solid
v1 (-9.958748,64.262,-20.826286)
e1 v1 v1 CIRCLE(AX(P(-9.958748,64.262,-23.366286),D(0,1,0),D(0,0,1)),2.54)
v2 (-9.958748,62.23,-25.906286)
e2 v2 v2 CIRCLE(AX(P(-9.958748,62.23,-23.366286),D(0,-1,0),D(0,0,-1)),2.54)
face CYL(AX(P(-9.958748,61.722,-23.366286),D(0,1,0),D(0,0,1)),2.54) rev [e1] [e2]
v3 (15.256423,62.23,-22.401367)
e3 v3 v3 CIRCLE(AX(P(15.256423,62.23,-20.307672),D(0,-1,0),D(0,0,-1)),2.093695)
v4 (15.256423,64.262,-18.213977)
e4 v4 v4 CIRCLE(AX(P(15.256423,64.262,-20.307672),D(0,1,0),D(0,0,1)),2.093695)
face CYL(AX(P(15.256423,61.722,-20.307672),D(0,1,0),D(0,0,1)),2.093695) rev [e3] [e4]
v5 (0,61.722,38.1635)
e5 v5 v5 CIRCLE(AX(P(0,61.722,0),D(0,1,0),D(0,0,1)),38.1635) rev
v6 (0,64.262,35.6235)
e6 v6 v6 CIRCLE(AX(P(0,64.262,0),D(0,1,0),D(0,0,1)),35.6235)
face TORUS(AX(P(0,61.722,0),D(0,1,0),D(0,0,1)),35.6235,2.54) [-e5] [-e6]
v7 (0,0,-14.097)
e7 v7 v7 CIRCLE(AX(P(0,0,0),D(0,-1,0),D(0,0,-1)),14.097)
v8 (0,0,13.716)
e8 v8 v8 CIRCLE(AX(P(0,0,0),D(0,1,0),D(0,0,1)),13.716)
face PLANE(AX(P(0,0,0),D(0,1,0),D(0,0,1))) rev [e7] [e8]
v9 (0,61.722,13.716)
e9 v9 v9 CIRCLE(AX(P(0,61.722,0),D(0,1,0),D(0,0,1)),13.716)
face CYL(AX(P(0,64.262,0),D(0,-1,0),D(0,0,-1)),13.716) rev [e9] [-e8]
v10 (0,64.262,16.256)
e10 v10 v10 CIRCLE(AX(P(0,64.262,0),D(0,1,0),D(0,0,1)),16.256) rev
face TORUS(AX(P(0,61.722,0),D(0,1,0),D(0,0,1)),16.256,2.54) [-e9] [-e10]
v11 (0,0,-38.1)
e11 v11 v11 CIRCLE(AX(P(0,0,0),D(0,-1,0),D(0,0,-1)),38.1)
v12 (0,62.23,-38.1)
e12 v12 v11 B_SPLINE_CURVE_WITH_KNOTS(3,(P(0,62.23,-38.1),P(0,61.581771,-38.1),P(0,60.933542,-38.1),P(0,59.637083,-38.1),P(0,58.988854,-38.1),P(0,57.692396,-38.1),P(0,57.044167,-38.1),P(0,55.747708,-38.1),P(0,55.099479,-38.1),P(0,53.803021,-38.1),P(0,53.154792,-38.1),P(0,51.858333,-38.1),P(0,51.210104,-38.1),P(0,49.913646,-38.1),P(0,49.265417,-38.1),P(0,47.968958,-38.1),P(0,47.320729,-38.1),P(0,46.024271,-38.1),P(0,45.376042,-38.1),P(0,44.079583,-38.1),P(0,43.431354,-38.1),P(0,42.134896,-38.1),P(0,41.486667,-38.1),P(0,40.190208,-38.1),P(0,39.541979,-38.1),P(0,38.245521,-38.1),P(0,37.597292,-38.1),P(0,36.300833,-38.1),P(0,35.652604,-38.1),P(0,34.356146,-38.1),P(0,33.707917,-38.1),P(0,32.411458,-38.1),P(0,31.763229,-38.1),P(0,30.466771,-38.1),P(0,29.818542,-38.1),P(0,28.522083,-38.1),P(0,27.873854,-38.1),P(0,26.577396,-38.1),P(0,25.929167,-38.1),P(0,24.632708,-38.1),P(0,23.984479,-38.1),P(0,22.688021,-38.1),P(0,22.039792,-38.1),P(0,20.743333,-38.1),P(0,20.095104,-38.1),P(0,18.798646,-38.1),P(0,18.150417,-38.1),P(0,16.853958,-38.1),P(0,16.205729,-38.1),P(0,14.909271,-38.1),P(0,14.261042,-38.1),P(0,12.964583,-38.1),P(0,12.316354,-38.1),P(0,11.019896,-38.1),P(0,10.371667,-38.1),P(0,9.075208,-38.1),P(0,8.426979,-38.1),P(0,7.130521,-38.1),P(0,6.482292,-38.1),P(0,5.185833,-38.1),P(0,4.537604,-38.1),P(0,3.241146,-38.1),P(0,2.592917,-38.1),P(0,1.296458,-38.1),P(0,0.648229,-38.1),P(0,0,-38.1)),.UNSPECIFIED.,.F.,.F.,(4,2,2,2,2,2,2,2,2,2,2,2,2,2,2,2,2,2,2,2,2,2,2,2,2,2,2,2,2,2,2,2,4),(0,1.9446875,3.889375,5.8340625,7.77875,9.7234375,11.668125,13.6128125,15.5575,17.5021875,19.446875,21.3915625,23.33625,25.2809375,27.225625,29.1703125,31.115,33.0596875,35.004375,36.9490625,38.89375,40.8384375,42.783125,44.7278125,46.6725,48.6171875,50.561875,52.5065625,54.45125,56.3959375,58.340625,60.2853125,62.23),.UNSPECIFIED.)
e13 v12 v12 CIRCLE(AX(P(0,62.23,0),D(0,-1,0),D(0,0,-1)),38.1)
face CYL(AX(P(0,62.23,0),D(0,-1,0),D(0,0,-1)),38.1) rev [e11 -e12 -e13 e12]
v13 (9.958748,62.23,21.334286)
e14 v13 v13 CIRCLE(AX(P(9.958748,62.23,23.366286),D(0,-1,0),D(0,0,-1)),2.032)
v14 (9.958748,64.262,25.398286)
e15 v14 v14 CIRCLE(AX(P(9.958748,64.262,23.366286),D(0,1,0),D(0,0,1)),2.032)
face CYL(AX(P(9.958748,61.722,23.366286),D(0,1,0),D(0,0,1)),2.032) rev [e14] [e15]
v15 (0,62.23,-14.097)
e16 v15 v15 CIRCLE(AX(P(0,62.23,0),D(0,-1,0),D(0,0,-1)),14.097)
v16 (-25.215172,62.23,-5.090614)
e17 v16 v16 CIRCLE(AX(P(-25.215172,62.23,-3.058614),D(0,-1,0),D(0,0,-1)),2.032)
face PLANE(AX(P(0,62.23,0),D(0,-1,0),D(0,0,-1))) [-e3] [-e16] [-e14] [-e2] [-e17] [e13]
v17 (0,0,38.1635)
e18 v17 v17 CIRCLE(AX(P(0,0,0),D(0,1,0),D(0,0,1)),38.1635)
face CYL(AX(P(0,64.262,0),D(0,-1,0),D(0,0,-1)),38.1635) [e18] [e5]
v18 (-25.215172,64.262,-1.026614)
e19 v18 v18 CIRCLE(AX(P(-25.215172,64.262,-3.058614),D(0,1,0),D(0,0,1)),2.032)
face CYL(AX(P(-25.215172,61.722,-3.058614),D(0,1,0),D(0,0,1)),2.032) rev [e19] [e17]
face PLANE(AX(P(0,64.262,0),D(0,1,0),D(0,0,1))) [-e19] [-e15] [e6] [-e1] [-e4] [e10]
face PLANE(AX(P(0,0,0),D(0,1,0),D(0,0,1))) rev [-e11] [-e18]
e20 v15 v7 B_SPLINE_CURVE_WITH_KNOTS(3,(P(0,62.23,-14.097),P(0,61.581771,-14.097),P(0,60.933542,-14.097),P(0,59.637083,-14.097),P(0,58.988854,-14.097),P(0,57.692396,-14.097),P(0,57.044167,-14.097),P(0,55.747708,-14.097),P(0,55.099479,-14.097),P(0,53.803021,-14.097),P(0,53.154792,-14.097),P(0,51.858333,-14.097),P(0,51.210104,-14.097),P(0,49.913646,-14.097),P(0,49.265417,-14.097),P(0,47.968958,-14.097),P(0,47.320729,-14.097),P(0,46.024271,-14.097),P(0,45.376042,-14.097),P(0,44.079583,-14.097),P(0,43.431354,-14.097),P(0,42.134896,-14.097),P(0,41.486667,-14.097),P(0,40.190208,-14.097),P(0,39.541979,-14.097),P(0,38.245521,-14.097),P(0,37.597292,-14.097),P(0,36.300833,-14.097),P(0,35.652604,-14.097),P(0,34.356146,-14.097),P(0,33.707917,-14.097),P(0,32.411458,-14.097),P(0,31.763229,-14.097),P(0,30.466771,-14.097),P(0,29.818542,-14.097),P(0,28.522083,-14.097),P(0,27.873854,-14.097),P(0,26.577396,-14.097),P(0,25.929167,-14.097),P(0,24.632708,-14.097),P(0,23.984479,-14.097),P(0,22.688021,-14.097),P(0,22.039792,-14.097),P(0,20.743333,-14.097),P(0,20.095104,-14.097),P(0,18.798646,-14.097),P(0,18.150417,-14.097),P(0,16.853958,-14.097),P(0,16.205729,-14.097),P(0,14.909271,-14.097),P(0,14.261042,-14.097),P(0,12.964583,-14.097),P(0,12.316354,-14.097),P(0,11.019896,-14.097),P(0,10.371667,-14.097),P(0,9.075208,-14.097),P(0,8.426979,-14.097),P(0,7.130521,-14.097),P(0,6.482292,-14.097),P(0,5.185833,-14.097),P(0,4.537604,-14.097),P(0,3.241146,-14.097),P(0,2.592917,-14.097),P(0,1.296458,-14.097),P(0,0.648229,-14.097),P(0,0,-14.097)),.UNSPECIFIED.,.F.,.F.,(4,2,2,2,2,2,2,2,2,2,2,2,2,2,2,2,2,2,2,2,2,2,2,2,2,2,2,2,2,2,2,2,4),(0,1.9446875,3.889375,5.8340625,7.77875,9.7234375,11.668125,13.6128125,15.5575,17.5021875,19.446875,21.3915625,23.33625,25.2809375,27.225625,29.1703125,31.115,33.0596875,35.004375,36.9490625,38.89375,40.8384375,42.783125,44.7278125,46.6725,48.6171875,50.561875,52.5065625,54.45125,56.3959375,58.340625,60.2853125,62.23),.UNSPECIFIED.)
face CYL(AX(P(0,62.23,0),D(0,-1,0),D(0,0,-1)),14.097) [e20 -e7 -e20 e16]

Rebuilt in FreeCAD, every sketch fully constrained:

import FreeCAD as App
import Part
import Sketcher
Q = App.Units.Quantity


def edges_at(feature, points):
    """Names of the edges that pass closest to the given points."""
    edges = feature.Shape.Edges
    near = lambda p: min(range(len(edges)), key=lambda i: edges[i].distToShape(Part.Vertex(*p))[0])
    return sorted({f"Edge{near(p) + 1}" for p in points})

doc = App.newDocument("Part")
body = doc.addObject("PartDesign::Body", "Body")

# Sketch on XZ plane
sketch1 = doc.addObject("Sketcher::SketchObject", "Sketch")
body.addObject(sketch1)
sketch1.AttachmentSupport = (doc.XZ_Plane, [""])
sketch1.MapMode = "FlatFace"
sketch1.addGeometry([
    Part.Circle(App.Vector(0, 0, 0), App.Vector(0, 0, 1), 38.1635),
    Part.Circle(App.Vector(0, 0, 0), App.Vector(0, 0, 1), 13.716),
], False)
sketch1.addConstraint([
    Sketcher.Constraint("Coincident", 0, 3, -1, 1),
    Sketcher.Constraint("Coincident", 1, 3, -1, 1),
    Sketcher.Constraint("Diameter", 1, Q("1.08 in")),
    Sketcher.Constraint("Diameter", 0, Q("3.005 in")),
])
pad1 = doc.addObject("PartDesign::Pad", "Pad")
body.addObject(pad1)
pad1.Profile = sketch1
pad1.Length = Q("2.53 in")
pad1.Reversed = True

# Sketch on XZ plane
sketch2 = doc.addObject("Sketcher::SketchObject", "Sketch001")
body.addObject(sketch2)
sketch2.AttachmentSupport = (doc.XZ_Plane, [""])
sketch2.MapMode = "FlatFace"
sketch2.addGeometry([
    Part.Circle(App.Vector(0, 0, 0), App.Vector(0, 0, 1), 38.1),
    Part.Circle(App.Vector(0, 0, 0), App.Vector(0, 0, 1), 14.097),
], False)
sketch2.addConstraint([
    Sketcher.Constraint("Coincident", 0, 3, -1, 1),
    Sketcher.Constraint("Coincident", 1, 3, -1, 1),
    Sketcher.Constraint("Diameter", 0, Q("3 in")),
    Sketcher.Constraint("Diameter", 1, Q("1.11 in")),
])
pocket1 = doc.addObject("PartDesign::Pocket", "Pocket")
body.addObject(pocket1)
pocket1.Profile = sketch2
pocket1.Length = Q("2.45 in")
doc.recompute()

fillet = doc.addObject("PartDesign::Fillet", "Fillet")
body.addObject(fillet)
fillet.Base = (pocket1, edges_at(pocket1, [(0, 64.262, -38.163), (0, 64.262, -13.716)]))
fillet.Radius = Q("0.1 in")

# Sketch on XZ plane
sketch3 = doc.addObject("Sketcher::SketchObject", "Sketch002")
body.addObject(sketch3)
sketch3.AttachmentSupport = (doc.XZ_Plane, [""])
sketch3.MapMode = "FlatFace"
sketch3.AttachmentOffset = App.Placement(App.Vector(0, 0, -2.53 * 25.4), App.Rotation())
sketch3.addGeometry([
    Part.Circle(App.Vector(15.256423, -20.307672, 0), App.Vector(0, 0, 1), 2.093695),
    Part.Circle(App.Vector(-25.215172, -3.058614, 0), App.Vector(0, 0, 1), 2.032),
    Part.Circle(App.Vector(9.958748, 23.366286, 0), App.Vector(0, 0, 1), 2.032),
    Part.Circle(App.Vector(-9.958748, -23.366286, 0), App.Vector(0, 0, 1), 2.54),
], False)
sketch3.addConstraint([
    Sketcher.Constraint("Equal", 1, 2),
    Sketcher.Constraint("Symmetric", 2, 3, 3, 3, -1, 1),
    Sketcher.Constraint("Diameter", 3, Q("0.2 in")),
    Sketcher.Constraint("Diameter", 1, Q("0.16 in")),
    Sketcher.Constraint("Diameter", 0, 4.18739),
    Sketcher.Constraint("DistanceX", 1, 3, 2, 3, Q("1.3848 in")),
    Sketcher.Constraint("DistanceY", 1, 3, 2, 3, 26.424901),
    Sketcher.Constraint("DistanceX", 1, 3, -1, 1, 25.215172),
    Sketcher.Constraint("DistanceY", 0, 3, 2, 3, 43.673958),
    Sketcher.Constraint("DistanceX", 3, 3, 0, 3, 25.215172),
    Sketcher.Constraint("DistanceY", 0, 3, -1, 1, 20.307672),
])
pocket2 = doc.addObject("PartDesign::Pocket", "Pocket001")
body.addObject(pocket2)
pocket2.Profile = sketch3
pocket2.Length = Q("0.1 in")
pocket2.Reversed = True

doc.recompute()
